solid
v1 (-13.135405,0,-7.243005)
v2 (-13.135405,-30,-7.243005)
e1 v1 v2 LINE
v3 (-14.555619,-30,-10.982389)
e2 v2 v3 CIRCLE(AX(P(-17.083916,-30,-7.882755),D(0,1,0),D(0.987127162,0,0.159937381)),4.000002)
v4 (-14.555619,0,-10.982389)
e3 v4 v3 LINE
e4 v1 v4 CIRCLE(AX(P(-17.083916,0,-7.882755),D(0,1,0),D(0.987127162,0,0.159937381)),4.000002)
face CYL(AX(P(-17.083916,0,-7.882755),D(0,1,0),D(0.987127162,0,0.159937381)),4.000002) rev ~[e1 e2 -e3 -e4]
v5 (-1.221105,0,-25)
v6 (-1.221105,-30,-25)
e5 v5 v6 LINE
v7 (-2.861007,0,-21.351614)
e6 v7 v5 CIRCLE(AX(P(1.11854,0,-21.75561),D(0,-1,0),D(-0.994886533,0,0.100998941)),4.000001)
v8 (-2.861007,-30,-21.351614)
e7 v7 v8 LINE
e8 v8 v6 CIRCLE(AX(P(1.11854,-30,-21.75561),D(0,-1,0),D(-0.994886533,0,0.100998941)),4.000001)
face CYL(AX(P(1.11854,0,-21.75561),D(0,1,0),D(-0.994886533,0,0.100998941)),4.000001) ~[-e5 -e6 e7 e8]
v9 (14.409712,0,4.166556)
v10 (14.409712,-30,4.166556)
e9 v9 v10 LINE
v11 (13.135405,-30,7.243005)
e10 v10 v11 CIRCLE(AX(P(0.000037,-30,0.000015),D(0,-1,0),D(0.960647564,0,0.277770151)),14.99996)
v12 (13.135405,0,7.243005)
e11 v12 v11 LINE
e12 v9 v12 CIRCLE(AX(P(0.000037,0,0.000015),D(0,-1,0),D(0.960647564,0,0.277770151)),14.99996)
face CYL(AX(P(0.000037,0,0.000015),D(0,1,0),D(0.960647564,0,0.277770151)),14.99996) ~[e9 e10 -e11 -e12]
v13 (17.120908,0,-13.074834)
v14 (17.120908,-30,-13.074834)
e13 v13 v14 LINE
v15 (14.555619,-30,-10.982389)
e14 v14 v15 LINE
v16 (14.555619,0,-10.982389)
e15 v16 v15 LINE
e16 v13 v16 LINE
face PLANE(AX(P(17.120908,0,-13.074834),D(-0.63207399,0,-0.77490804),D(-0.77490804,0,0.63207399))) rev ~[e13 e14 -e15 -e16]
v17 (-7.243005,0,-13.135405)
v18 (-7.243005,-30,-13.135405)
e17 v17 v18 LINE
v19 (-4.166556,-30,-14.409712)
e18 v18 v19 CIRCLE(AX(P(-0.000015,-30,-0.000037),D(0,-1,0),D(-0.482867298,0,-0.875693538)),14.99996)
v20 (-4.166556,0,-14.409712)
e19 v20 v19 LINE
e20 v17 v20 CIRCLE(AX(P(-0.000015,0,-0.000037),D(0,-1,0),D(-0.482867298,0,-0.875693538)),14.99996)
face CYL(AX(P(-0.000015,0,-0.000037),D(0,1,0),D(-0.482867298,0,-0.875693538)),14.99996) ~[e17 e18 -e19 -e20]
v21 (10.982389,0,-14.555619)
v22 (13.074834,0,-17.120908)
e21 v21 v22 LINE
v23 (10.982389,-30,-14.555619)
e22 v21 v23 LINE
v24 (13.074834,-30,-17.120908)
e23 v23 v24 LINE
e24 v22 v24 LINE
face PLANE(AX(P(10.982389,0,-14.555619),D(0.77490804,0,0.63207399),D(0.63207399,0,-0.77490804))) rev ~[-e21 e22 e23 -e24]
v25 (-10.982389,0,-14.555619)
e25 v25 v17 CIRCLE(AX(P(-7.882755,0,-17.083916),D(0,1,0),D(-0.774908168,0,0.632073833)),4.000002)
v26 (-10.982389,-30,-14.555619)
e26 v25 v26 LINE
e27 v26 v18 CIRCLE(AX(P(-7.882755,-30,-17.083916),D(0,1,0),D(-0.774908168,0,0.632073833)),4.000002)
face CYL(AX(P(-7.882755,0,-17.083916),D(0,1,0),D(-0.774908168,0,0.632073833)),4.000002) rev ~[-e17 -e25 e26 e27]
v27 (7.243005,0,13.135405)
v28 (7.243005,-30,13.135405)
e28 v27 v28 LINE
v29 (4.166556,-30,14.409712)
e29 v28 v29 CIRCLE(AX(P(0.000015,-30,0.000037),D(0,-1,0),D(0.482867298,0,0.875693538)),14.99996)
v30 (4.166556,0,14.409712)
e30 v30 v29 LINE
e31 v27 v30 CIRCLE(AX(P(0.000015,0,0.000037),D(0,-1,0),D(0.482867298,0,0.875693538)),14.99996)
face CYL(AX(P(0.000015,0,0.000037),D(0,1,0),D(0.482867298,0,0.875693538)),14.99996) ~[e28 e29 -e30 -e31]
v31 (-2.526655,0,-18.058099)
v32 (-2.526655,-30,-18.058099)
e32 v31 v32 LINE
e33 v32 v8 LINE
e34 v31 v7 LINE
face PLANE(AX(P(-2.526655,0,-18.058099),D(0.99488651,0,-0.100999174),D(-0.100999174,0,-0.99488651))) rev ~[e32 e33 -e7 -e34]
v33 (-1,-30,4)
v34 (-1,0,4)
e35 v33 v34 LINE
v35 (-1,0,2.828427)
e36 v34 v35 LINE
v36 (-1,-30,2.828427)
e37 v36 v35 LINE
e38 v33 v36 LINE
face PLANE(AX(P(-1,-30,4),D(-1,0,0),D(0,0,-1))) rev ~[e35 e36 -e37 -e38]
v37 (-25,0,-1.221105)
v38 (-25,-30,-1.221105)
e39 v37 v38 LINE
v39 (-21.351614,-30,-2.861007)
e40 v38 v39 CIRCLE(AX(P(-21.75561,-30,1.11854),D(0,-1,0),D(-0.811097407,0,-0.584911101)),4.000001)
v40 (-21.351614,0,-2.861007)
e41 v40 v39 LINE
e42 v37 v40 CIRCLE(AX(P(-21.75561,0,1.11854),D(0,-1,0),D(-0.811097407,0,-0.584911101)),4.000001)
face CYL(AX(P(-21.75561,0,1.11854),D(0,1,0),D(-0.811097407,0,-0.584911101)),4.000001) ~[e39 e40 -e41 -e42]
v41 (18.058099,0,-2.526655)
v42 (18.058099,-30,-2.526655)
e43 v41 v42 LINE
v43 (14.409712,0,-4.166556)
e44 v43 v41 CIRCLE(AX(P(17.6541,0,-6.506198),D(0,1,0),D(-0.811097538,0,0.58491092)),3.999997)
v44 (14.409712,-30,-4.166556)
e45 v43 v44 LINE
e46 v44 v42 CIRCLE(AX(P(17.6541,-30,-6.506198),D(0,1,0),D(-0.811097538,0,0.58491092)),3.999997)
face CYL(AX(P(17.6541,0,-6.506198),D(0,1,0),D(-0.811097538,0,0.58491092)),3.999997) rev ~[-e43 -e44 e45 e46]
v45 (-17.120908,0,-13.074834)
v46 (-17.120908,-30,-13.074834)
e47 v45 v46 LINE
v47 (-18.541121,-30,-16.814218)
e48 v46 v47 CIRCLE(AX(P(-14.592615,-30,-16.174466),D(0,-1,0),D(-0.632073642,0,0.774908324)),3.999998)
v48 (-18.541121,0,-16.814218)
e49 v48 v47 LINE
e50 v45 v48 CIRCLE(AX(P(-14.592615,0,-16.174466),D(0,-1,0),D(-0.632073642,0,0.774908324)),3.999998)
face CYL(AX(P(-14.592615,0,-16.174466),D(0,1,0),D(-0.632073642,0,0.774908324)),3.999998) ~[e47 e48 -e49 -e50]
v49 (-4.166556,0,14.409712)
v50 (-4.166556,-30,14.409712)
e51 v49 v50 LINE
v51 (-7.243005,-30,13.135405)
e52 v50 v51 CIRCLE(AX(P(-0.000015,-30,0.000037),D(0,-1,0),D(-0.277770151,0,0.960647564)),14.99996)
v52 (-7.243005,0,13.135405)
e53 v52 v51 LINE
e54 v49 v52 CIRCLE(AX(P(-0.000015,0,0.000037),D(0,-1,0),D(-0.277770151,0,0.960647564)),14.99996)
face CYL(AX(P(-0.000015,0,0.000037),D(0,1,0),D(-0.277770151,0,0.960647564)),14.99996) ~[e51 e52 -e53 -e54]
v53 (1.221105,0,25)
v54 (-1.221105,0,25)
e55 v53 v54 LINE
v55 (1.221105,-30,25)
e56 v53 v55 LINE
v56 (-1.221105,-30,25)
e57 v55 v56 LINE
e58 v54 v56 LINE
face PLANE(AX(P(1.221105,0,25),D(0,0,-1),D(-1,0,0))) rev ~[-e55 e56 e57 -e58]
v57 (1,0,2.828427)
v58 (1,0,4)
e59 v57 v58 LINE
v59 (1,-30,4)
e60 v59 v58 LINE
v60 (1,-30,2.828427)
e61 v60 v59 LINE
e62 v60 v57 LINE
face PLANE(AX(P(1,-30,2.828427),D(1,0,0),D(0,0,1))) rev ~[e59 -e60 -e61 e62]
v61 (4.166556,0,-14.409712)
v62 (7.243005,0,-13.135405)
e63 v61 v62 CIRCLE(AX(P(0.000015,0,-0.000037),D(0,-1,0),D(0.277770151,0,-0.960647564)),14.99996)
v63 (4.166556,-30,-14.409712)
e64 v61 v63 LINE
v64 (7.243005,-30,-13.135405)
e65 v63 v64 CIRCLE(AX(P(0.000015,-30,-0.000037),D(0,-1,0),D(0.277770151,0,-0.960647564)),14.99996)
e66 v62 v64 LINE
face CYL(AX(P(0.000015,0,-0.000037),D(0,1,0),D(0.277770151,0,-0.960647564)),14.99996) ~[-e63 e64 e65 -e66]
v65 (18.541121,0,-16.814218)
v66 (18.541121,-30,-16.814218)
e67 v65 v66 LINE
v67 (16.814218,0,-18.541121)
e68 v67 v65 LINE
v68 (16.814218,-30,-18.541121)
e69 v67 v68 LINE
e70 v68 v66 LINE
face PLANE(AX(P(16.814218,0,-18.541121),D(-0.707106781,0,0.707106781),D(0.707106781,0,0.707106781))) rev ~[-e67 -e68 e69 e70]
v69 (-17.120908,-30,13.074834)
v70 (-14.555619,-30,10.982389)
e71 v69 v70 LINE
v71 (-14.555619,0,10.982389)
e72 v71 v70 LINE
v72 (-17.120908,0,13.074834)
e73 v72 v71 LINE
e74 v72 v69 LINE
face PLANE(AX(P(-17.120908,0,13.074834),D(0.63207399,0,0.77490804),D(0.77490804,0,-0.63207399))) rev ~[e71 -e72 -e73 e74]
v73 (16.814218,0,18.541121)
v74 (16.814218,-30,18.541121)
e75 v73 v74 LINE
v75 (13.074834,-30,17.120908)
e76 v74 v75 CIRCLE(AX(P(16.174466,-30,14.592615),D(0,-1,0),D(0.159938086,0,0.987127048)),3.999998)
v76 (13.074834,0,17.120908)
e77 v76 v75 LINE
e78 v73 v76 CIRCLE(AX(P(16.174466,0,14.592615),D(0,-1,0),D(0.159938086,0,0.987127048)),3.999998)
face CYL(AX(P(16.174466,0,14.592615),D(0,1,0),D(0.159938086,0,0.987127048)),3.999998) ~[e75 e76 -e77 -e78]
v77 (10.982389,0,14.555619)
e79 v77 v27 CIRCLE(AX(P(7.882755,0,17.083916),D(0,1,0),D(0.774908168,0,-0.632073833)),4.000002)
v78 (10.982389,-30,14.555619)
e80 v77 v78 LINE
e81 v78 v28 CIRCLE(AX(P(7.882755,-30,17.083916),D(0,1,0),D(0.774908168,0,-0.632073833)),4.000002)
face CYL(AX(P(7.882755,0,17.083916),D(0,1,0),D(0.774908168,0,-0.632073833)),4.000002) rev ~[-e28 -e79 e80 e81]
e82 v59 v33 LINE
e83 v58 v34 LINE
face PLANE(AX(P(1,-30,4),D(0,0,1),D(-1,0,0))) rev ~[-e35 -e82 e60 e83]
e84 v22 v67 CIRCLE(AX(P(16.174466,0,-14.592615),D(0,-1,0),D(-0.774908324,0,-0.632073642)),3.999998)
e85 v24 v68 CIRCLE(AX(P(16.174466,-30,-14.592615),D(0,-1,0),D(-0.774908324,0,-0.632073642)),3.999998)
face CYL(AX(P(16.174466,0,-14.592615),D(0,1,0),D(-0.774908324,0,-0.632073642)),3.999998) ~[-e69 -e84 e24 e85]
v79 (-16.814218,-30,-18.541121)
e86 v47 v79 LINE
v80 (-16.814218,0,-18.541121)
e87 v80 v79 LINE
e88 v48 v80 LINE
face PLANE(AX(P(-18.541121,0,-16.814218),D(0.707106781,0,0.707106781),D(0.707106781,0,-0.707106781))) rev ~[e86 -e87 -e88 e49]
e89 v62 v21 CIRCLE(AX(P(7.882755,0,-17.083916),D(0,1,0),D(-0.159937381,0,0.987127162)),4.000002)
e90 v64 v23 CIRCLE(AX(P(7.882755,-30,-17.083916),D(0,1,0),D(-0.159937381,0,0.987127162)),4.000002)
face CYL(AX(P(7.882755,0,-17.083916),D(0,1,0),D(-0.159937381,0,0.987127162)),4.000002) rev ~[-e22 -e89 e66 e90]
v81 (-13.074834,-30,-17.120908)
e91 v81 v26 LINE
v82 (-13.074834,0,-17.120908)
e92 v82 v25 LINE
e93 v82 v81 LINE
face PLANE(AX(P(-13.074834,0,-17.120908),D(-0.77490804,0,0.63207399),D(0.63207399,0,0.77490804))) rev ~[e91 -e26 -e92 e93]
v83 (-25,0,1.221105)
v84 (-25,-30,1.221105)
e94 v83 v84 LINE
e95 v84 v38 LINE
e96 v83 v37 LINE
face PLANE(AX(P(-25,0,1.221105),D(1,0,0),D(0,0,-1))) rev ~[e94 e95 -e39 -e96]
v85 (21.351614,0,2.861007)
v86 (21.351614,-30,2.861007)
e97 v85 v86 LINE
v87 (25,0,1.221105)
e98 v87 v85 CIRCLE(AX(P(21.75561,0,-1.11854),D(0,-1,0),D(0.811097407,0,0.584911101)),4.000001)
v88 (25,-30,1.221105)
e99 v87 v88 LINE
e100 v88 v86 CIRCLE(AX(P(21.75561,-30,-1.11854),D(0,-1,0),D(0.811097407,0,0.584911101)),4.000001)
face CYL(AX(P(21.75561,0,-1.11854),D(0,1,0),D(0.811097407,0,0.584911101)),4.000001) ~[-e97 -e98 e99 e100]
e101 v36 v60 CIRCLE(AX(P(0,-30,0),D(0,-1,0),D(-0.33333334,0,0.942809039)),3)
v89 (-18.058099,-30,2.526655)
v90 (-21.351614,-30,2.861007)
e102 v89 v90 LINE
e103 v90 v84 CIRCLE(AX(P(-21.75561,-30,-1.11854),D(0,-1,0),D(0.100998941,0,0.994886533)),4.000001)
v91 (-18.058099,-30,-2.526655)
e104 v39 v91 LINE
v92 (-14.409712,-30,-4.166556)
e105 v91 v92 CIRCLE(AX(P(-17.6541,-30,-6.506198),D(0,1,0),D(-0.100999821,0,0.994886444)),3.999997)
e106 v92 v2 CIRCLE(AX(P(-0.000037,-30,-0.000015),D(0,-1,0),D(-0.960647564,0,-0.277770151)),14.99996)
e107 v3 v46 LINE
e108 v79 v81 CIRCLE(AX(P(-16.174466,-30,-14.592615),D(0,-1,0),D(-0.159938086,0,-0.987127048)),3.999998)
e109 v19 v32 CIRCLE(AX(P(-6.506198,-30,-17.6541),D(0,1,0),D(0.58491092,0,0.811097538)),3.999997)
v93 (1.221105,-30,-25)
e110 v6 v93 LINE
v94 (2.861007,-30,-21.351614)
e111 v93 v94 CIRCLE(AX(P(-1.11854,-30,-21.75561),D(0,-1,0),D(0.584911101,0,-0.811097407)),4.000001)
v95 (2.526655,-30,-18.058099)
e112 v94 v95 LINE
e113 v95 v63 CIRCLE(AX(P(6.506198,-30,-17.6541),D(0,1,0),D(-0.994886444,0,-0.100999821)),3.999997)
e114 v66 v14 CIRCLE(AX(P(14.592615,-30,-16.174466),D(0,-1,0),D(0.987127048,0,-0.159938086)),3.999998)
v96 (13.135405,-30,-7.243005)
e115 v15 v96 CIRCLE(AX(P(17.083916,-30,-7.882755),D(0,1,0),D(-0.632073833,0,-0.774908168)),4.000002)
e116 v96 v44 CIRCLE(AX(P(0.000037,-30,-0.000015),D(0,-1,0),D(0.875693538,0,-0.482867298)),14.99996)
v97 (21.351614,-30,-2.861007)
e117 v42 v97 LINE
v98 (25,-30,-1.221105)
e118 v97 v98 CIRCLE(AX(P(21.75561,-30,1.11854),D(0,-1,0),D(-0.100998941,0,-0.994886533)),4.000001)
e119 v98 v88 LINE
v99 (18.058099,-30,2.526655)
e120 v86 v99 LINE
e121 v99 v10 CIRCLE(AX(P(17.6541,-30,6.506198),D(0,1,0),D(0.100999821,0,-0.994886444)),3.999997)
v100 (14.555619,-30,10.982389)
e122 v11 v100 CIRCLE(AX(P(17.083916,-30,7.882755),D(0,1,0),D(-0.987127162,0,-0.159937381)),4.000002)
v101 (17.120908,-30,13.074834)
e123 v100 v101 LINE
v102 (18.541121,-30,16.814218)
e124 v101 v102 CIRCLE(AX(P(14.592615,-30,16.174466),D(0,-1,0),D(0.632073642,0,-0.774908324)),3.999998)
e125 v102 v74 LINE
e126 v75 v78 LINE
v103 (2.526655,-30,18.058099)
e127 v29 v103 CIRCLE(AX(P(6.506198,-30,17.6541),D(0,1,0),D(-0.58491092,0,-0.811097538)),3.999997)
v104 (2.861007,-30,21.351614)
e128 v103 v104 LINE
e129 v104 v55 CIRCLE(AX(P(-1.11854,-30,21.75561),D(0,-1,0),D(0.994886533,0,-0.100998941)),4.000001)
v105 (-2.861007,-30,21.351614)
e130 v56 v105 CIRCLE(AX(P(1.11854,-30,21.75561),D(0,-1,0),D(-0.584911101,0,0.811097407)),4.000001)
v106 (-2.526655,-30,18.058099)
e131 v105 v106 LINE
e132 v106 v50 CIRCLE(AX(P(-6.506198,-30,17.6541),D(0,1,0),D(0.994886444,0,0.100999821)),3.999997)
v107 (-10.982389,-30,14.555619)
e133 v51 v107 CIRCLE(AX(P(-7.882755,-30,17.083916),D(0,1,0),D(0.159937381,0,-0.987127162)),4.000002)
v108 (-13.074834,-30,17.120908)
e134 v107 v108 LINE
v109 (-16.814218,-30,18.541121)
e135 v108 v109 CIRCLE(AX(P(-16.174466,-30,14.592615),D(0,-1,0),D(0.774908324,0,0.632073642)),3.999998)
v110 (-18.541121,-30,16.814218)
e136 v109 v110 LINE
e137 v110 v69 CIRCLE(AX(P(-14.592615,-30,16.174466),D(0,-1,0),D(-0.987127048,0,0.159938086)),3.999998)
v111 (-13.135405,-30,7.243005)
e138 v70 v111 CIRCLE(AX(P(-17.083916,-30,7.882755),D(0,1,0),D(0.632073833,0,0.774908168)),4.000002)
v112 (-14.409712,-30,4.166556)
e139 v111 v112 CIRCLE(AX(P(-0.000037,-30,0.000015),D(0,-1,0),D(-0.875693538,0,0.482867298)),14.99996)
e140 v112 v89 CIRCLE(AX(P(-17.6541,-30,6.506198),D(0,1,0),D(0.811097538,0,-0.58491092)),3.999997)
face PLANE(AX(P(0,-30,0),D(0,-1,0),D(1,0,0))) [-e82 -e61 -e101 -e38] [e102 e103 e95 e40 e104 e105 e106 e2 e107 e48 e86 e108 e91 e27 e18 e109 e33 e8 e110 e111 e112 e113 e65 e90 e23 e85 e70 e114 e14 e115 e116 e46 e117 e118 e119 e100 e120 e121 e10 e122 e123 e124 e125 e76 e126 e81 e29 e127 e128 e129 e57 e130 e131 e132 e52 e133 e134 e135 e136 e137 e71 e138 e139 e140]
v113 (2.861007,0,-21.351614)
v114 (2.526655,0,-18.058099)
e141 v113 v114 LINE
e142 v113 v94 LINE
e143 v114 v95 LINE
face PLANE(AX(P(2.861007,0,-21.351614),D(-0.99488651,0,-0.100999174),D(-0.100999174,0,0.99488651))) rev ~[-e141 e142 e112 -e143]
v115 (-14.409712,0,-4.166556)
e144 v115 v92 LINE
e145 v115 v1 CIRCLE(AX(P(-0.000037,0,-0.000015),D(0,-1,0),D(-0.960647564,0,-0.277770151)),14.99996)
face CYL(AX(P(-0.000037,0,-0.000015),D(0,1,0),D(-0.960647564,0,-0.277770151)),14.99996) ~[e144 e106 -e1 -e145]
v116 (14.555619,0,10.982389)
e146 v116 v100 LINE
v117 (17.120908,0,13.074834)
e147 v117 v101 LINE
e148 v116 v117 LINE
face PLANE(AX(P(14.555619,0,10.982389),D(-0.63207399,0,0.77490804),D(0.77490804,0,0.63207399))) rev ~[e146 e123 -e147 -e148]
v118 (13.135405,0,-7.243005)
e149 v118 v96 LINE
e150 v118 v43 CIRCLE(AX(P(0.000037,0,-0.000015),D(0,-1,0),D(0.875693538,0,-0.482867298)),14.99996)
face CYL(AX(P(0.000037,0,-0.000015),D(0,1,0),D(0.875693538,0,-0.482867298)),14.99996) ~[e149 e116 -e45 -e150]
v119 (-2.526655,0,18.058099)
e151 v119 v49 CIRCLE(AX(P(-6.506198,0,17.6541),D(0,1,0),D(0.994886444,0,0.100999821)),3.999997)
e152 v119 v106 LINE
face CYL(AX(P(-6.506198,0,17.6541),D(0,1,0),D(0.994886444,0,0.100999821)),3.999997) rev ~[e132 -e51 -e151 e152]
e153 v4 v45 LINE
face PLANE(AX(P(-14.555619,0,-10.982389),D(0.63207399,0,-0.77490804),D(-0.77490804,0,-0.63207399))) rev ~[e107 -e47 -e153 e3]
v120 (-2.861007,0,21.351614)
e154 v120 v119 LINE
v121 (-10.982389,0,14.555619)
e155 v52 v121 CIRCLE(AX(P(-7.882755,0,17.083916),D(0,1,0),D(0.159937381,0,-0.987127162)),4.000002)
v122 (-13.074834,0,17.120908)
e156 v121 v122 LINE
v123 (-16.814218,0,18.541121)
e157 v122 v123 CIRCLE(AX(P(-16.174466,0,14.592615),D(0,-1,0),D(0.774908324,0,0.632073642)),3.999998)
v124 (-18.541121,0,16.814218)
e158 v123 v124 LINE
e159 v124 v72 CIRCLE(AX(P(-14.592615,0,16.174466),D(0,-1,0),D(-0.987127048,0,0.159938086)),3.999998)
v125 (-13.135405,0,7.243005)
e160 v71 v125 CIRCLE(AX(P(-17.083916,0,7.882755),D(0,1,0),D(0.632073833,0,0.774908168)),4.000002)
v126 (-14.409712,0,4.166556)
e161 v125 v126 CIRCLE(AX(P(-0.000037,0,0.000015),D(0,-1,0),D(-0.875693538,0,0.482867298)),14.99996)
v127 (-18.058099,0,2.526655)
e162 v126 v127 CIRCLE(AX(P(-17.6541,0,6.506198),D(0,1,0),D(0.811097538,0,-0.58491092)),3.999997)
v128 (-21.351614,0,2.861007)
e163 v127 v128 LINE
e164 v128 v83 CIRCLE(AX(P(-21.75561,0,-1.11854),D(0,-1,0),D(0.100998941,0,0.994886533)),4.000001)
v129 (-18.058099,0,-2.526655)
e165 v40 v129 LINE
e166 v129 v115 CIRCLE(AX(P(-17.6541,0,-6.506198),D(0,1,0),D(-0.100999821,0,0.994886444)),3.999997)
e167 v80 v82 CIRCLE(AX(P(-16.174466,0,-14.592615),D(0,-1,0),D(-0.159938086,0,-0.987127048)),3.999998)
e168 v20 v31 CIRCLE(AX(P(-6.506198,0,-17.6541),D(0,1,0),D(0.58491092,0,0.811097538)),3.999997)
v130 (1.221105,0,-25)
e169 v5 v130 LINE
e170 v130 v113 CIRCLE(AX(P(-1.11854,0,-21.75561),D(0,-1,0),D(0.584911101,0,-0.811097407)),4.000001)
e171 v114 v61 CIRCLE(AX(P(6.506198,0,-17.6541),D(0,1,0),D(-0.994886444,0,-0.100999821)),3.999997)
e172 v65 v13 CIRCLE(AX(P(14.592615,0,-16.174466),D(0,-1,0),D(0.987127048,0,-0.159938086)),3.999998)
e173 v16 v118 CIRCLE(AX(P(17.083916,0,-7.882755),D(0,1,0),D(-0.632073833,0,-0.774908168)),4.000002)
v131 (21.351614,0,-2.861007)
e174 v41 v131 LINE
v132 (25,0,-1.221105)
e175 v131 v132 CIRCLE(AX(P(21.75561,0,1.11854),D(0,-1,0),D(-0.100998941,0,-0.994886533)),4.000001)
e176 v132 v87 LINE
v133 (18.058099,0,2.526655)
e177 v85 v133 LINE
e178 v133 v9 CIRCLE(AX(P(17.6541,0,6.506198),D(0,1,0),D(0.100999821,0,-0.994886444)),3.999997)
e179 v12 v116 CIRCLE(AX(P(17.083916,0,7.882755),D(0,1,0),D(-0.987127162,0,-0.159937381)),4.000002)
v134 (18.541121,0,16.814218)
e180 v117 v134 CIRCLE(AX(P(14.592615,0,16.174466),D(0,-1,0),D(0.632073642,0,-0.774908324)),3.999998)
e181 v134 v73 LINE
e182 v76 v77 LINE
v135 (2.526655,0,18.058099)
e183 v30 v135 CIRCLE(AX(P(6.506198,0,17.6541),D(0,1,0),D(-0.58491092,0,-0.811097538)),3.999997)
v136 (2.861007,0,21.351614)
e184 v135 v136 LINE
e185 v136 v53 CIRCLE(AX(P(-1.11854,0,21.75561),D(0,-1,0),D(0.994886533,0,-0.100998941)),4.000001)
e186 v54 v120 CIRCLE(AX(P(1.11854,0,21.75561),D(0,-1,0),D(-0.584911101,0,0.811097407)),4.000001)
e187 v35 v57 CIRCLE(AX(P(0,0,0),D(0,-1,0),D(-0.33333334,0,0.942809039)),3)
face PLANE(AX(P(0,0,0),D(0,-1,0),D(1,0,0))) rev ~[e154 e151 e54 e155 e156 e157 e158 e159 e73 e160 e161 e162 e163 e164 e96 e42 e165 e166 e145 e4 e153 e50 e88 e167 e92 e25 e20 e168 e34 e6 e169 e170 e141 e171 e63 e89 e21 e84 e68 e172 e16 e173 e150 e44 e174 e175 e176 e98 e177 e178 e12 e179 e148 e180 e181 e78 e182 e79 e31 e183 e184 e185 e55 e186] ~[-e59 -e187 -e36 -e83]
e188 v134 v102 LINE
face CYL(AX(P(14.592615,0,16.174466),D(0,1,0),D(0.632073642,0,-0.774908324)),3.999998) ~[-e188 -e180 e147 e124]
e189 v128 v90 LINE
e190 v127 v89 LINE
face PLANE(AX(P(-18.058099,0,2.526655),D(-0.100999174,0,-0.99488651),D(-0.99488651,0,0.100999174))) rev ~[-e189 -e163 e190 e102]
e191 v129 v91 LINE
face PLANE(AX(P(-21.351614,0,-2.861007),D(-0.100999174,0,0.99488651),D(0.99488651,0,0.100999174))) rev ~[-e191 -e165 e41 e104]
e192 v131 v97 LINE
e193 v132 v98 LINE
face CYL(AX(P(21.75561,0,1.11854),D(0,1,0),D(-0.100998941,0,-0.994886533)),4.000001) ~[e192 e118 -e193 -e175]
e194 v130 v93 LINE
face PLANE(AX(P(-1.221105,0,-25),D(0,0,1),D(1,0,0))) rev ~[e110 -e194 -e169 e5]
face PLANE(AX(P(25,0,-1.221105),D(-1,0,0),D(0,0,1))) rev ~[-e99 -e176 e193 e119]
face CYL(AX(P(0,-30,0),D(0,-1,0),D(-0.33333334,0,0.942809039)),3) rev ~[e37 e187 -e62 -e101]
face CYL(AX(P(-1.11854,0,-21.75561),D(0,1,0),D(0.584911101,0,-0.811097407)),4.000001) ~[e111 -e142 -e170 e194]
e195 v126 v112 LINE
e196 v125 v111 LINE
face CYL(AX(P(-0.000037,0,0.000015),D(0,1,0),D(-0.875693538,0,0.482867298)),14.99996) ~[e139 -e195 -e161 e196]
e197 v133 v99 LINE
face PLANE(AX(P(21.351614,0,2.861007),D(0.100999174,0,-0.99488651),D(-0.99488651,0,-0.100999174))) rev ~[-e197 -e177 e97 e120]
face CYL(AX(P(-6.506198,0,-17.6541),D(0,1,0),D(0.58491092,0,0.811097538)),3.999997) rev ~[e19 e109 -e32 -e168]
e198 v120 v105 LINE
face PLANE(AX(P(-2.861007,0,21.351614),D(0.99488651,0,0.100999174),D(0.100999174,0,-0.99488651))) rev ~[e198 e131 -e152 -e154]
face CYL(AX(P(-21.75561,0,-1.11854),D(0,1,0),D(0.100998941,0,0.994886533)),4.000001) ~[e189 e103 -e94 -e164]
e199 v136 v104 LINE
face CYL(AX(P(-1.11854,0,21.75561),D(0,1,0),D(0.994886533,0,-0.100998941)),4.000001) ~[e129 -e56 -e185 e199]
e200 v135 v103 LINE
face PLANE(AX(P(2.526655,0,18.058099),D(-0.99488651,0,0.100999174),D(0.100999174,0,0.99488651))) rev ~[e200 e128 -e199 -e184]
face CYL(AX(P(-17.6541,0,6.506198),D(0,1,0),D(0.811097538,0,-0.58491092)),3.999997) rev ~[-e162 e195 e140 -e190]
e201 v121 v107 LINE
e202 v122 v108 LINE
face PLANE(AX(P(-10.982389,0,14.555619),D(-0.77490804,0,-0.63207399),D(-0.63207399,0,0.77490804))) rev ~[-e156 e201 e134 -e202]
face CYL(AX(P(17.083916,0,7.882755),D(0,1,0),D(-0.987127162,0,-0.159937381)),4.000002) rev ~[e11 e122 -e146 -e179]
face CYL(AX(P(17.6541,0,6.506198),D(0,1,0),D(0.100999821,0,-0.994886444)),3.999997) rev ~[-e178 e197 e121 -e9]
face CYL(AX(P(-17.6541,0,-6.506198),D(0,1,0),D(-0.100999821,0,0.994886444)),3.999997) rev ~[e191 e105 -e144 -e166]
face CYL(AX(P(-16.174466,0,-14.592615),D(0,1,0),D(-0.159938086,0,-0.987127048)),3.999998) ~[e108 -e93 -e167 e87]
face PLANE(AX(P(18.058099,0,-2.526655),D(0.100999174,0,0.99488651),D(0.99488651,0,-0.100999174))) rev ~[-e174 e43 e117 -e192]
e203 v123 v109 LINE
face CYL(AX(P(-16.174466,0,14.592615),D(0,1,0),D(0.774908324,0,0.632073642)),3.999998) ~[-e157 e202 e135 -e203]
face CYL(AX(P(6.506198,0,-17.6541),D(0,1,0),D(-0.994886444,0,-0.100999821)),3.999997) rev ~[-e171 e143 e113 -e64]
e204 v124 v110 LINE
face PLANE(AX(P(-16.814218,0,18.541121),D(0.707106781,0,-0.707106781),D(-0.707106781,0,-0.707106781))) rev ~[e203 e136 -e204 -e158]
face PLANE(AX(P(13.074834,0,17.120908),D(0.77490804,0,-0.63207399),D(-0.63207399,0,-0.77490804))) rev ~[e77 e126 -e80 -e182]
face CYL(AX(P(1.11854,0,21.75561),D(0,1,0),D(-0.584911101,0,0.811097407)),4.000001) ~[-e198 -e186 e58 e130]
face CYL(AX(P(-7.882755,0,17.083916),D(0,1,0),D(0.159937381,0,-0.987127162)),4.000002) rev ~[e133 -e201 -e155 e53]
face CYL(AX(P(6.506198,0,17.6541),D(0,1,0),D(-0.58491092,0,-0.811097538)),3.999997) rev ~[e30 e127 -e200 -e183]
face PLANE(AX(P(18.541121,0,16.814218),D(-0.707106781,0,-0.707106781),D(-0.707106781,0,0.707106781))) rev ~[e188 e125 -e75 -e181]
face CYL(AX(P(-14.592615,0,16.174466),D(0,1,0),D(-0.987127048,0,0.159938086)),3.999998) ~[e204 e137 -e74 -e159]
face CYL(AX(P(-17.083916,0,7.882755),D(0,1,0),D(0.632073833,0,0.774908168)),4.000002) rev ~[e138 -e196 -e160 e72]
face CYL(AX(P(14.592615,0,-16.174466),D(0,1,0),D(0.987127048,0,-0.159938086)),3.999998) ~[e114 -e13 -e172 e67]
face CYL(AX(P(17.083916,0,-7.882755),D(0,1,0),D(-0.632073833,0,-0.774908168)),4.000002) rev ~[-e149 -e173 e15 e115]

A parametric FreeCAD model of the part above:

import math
import FreeCAD as App
import Part
import Sketcher
from FreeCAD import Vector
Q = App.Units.Quantity

doc = App.newDocument("Part")
body = doc.addObject("PartDesign::Body", "Body")

# Sketch on XZ plane
sketch1 = body.newObject("Sketcher::SketchObject", "Sketch")
sketch1.AttachmentSupport = (doc.getObject("XZ_Plane"), [""])
sketch1.MapMode = "FlatFace"
sketch1.addGeometry(Part.ArcOfCircle(Part.Circle(Vector(-17.083916, 7.882755, 0), Vector(0, 0, 1), 4.000002), math.radians(-9.203262), math.radians(50.796708)), False)
sketch1.addGeometry(Part.ArcOfCircle(Part.Circle(Vector(-0.000037, 0.000015, 0), Vector(0, 0, 1), 14.99996), math.radians(151.127162), math.radians(163.872835)), False)
sketch1.addGeometry(Part.ArcOfCircle(Part.Circle(Vector(-17.6541, 6.506198, 0), Vector(0, 0, 1), 3.999997), math.radians(-95.796748), math.radians(-35.796697)), False)
sketch1.addGeometry(Part.LineSegment(Vector(-18.058099, 2.526655, 0), Vector(-21.351614, 2.861007, 0)), False)
sketch1.addGeometry(Part.ArcOfCircle(Part.Circle(Vector(-21.75561, -1.11854, 0), Vector(0, 0, 1), 4.000001), math.radians(84.203303), math.radians(144.20329)), False)
sketch1.addGeometry(Part.LineSegment(Vector(-25, 1.221105, 0), Vector(-25, -1.221105, 0)), False)
sketch1.addGeometry(Part.ArcOfCircle(Part.Circle(Vector(-21.75561, 1.11854, 0), Vector(0, 0, 1), 4.000001), math.radians(-144.20329), math.radians(-84.203303)), False)
sketch1.addGeometry(Part.LineSegment(Vector(-21.351614, -2.861007, 0), Vector(-18.058099, -2.526655, 0)), False)
sketch1.addGeometry(Part.ArcOfCircle(Part.Circle(Vector(-17.6541, -6.506198, 0), Vector(0, 0, 1), 3.999997), math.radians(35.796697), math.radians(95.796748)), False)
sketch1.addGeometry(Part.ArcOfCircle(Part.Circle(Vector(-0.000037, -0.000015, 0), Vector(0, 0, 1), 14.99996), math.radians(-163.872835), math.radians(-151.127162)), False)
sketch1.addGeometry(Part.ArcOfCircle(Part.Circle(Vector(-17.083916, -7.882755, 0), Vector(0, 0, 1), 4.000002), math.radians(-50.796708), math.radians(9.203262)), False)
sketch1.addGeometry(Part.LineSegment(Vector(-14.555619, -10.982389, 0), Vector(-17.120908, -13.074834, 0)), False)
sketch1.addGeometry(Part.ArcOfCircle(Part.Circle(Vector(-14.592615, -16.174466, 0), Vector(0, 0, 1), 3.999998), math.radians(129.203278), math.radians(189.203303)), False)
sketch1.addGeometry(Part.LineSegment(Vector(-18.541121, -16.814218, 0), Vector(-16.814218, -18.541121, 0)), False)
sketch1.addGeometry(Part.ArcOfCircle(Part.Circle(Vector(-16.174466, -14.592615, 0), Vector(0, 0, 1), 3.999998), math.radians(-99.203303), math.radians(-39.203278)), False)
sketch1.addGeometry(Part.LineSegment(Vector(-13.074834, -17.120908, 0), Vector(-10.982389, -14.555619, 0)), False)
sketch1.addGeometry(Part.ArcOfCircle(Part.Circle(Vector(-7.882755, -17.083916, 0), Vector(0, 0, 1), 4.000002), math.radians(80.796738), math.radians(140.796708)), False)
sketch1.addGeometry(Part.ArcOfCircle(Part.Circle(Vector(-0.000015, -0.000037, 0), Vector(0, 0, 1), 14.99996), math.radians(-118.872838), math.radians(-106.127165)), False)
sketch1.addGeometry(Part.ArcOfCircle(Part.Circle(Vector(-6.506198, -17.6541, 0), Vector(0, 0, 1), 3.999997), math.radians(-5.796748), math.radians(54.203303)), False)
sketch1.addGeometry(Part.LineSegment(Vector(-2.526655, -18.058099, 0), Vector(-2.861007, -21.351614, 0)), False)
sketch1.addGeometry(Part.ArcOfCircle(Part.Circle(Vector(1.11854, -21.75561, 0), Vector(0, 0, 1), 4.000001), math.radians(174.203303), math.radians(234.20329)), False)
sketch1.addGeometry(Part.LineSegment(Vector(-1.221105, -25, 0), Vector(1.221105, -25, 0)), False)
sketch1.addGeometry(Part.ArcOfCircle(Part.Circle(Vector(-1.11854, -21.75561, 0), Vector(0, 0, 1), 4.000001), math.radians(-54.20329), math.radians(5.796697)), False)
sketch1.addGeometry(Part.LineSegment(Vector(2.861007, -21.351614, 0), Vector(2.526655, -18.058099, 0)), False)
sketch1.addGeometry(Part.ArcOfCircle(Part.Circle(Vector(6.506198, -17.6541, 0), Vector(0, 0, 1), 3.999997), math.radians(125.796697), math.radians(185.796748)), False)
sketch1.addGeometry(Part.ArcOfCircle(Part.Circle(Vector(0.000015, -0.000037, 0), Vector(0, 0, 1), 14.99996), math.radians(-73.872835), math.radians(-61.127162)), False)
sketch1.addGeometry(Part.ArcOfCircle(Part.Circle(Vector(7.882755, -17.083916, 0), Vector(0, 0, 1), 4.000002), math.radians(39.203292), math.radians(99.203262)), False)
sketch1.addGeometry(Part.LineSegment(Vector(10.982389, -14.555619, 0), Vector(13.074834, -17.120908, 0)), False)
sketch1.addGeometry(Part.ArcOfCircle(Part.Circle(Vector(16.174466, -14.592615, 0), Vector(0, 0, 1), 3.999998), math.radians(-140.796722), math.radians(-80.796697)), False)
sketch1.addGeometry(Part.LineSegment(Vector(16.814218, -18.541121, 0), Vector(18.541121, -16.814218, 0)), False)
sketch1.addGeometry(Part.ArcOfCircle(Part.Circle(Vector(14.592615, -16.174466, 0), Vector(0, 0, 1), 3.999998), math.radians(-9.203303), math.radians(50.796722)), False)
sketch1.addGeometry(Part.LineSegment(Vector(17.120908, -13.074834, 0), Vector(14.555619, -10.982389, 0)), False)
sketch1.addGeometry(Part.ArcOfCircle(Part.Circle(Vector(17.083916, -7.882755, 0), Vector(0, 0, 1), 4.000002), math.radians(170.796738), math.radians(230.796708)), False)
sketch1.addGeometry(Part.ArcOfCircle(Part.Circle(Vector(0.000037, -0.000015, 0), Vector(0, 0, 1), 14.99996), math.radians(-28.872838), math.radians(-16.127165)), False)
sketch1.addGeometry(Part.ArcOfCircle(Part.Circle(Vector(17.6541, -6.506198, 0), Vector(0, 0, 1), 3.999997), math.radians(84.203252), math.radians(144.203303)), False)
sketch1.addGeometry(Part.LineSegment(Vector(18.058099, -2.526655, 0), Vector(21.351614, -2.861007, 0)), False)
sketch1.addGeometry(Part.ArcOfCircle(Part.Circle(Vector(21.75561, 1.11854, 0), Vector(0, 0, 1), 4.000001), math.radians(-95.796697), math.radians(-35.79671)), False)
sketch1.addGeometry(Part.LineSegment(Vector(25, -1.221105, 0), Vector(25, 1.221105, 0)), False)
sketch1.addGeometry(Part.ArcOfCircle(Part.Circle(Vector(21.75561, -1.11854, 0), Vector(0, 0, 1), 4.000001), math.radians(35.79671), math.radians(95.796697)), False)
sketch1.addGeometry(Part.LineSegment(Vector(21.351614, 2.861007, 0), Vector(18.058099, 2.526655, 0)), False)
sketch1.addGeometry(Part.ArcOfCircle(Part.Circle(Vector(17.6541, 6.506198, 0), Vector(0, 0, 1), 3.999997), math.radians(-144.203303), math.radians(-84.203252)), False)
sketch1.addGeometry(Part.ArcOfCircle(Part.Circle(Vector(0.000037, 0.000015, 0), Vector(0, 0, 1), 14.99996), math.radians(16.127165), math.radians(28.872838)), False)
sketch1.addGeometry(Part.ArcOfCircle(Part.Circle(Vector(17.083916, 7.882755, 0), Vector(0, 0, 1), 4.000002), math.radians(129.203292), math.radians(189.203262)), False)
sketch1.addGeometry(Part.LineSegment(Vector(14.555619, 10.982389, 0), Vector(17.120908, 13.074834, 0)), False)
sketch1.addGeometry(Part.ArcOfCircle(Part.Circle(Vector(14.592615, 16.174466, 0), Vector(0, 0, 1), 3.999998), math.radians(-50.796722), math.radians(9.203303)), False)
sketch1.addGeometry(Part.LineSegment(Vector(18.541121, 16.814218, 0), Vector(16.814218, 18.541121, 0)), False)
sketch1.addGeometry(Part.ArcOfCircle(Part.Circle(Vector(16.174466, 14.592615, 0), Vector(0, 0, 1), 3.999998), math.radians(80.796697), math.radians(140.796722)), False)
sketch1.addGeometry(Part.LineSegment(Vector(13.074834, 17.120908, 0), Vector(10.982389, 14.555619, 0)), False)
sketch1.addGeometry(Part.ArcOfCircle(Part.Circle(Vector(7.882755, 17.083916, 0), Vector(0, 0, 1), 4.000002), math.radians(-99.203262), math.radians(-39.203292)), False)
sketch1.addGeometry(Part.ArcOfCircle(Part.Circle(Vector(0.000015, 0.000037, 0), Vector(0, 0, 1), 14.99996), math.radians(61.127162), math.radians(73.872835)), False)
sketch1.addGeometry(Part.ArcOfCircle(Part.Circle(Vector(6.506198, 17.6541, 0), Vector(0, 0, 1), 3.999997), math.radians(174.203252), math.radians(234.203303)), False)
sketch1.addGeometry(Part.LineSegment(Vector(2.526655, 18.058099, 0), Vector(2.861007, 21.351614, 0)), False)
sketch1.addGeometry(Part.ArcOfCircle(Part.Circle(Vector(-1.11854, 21.75561, 0), Vector(0, 0, 1), 4.000001), math.radians(-5.796697), math.radians(54.20329)), False)
sketch1.addGeometry(Part.LineSegment(Vector(1.221105, 25, 0), Vector(-1.221105, 25, 0)), False)
sketch1.addGeometry(Part.ArcOfCircle(Part.Circle(Vector(1.11854, 21.75561, 0), Vector(0, 0, 1), 4.000001), math.radians(125.79671), math.radians(185.796697)), False)
sketch1.addGeometry(Part.LineSegment(Vector(-2.861007, 21.351614, 0), Vector(-2.526655, 18.058099, 0)), False)
sketch1.addGeometry(Part.ArcOfCircle(Part.Circle(Vector(-6.506198, 17.6541, 0), Vector(0, 0, 1), 3.999997), math.radians(-54.203303), math.radians(5.796748)), False)
sketch1.addGeometry(Part.ArcOfCircle(Part.Circle(Vector(-0.000015, 0.000037, 0), Vector(0, 0, 1), 14.99996), math.radians(106.127165), math.radians(118.872838)), False)
sketch1.addGeometry(Part.ArcOfCircle(Part.Circle(Vector(-7.882755, 17.083916, 0), Vector(0, 0, 1), 4.000002), math.radians(-140.796708), math.radians(-80.796738)), False)
sketch1.addGeometry(Part.LineSegment(Vector(-10.982389, 14.555619, 0), Vector(-13.074834, 17.120908, 0)), False)
sketch1.addGeometry(Part.ArcOfCircle(Part.Circle(Vector(-16.174466, 14.592615, 0), Vector(0, 0, 1), 3.999998), math.radians(39.203278), math.radians(99.203303)), False)
sketch1.addGeometry(Part.LineSegment(Vector(-16.814218, 18.541121, 0), Vector(-18.541121, 16.814218, 0)), False)
sketch1.addGeometry(Part.ArcOfCircle(Part.Circle(Vector(-14.592615, 16.174466, 0), Vector(0, 0, 1), 3.999998), math.radians(170.796697), math.radians(230.796722)), False)
sketch1.addGeometry(Part.LineSegment(Vector(-17.120908, 13.074834, 0), Vector(-14.555619, 10.982389, 0)), False)
sketch1.addConstraint(Sketcher.Constraint("Coincident", 0, 1, 1, 1))
sketch1.addConstraint(Sketcher.Constraint("Coincident", 1, 2, 2, 2))
sketch1.addConstraint(Sketcher.Constraint("Coincident", 2, 1, 3, 1))
sketch1.addConstraint(Sketcher.Constraint("Coincident", 3, 2, 4, 1))
sketch1.addConstraint(Sketcher.Constraint("Coincident", 4, 2, 5, 1))
sketch1.addConstraint(Sketcher.Constraint("Coincident", 5, 2, 6, 1))
sketch1.addConstraint(Sketcher.Constraint("Coincident", 6, 2, 7, 1))
sketch1.addConstraint(Sketcher.Constraint("Coincident", 7, 2, 8, 2))
sketch1.addConstraint(Sketcher.Constraint("Coincident", 8, 1, 9, 1))
sketch1.addConstraint(Sketcher.Constraint("Coincident", 9, 2, 10, 2))
sketch1.addConstraint(Sketcher.Constraint("Coincident", 10, 1, 11, 1))
sketch1.addConstraint(Sketcher.Constraint("Coincident", 11, 2, 12, 1))
sketch1.addConstraint(Sketcher.Constraint("Coincident", 12, 2, 13, 1))
sketch1.addConstraint(Sketcher.Constraint("Coincident", 13, 2, 14, 1))
sketch1.addConstraint(Sketcher.Constraint("Coincident", 14, 2, 15, 1))
sketch1.addConstraint(Sketcher.Constraint("Coincident", 15, 2, 16, 2))
sketch1.addConstraint(Sketcher.Constraint("Coincident", 16, 1, 17, 1))
sketch1.addConstraint(Sketcher.Constraint("Coincident", 17, 2, 18, 2))
sketch1.addConstraint(Sketcher.Constraint("Coincident", 18, 1, 19, 1))
sketch1.addConstraint(Sketcher.Constraint("Coincident", 19, 2, 20, 1))
sketch1.addConstraint(Sketcher.Constraint("Coincident", 20, 2, 21, 1))
sketch1.addConstraint(Sketcher.Constraint("Coincident", 21, 2, 22, 1))
sketch1.addConstraint(Sketcher.Constraint("Coincident", 22, 2, 23, 1))
sketch1.addConstraint(Sketcher.Constraint("Coincident", 23, 2, 24, 2))
sketch1.addConstraint(Sketcher.Constraint("Coincident", 24, 1, 25, 1))
sketch1.addConstraint(Sketcher.Constraint("Coincident", 25, 2, 26, 2))
sketch1.addConstraint(Sketcher.Constraint("Coincident", 26, 1, 27, 1))
sketch1.addConstraint(Sketcher.Constraint("Coincident", 27, 2, 28, 1))
sketch1.addConstraint(Sketcher.Constraint("Coincident", 28, 2, 29, 1))
sketch1.addConstraint(Sketcher.Constraint("Coincident", 29, 2, 30, 1))
sketch1.addConstraint(Sketcher.Constraint("Coincident", 30, 2, 31, 1))
sketch1.addConstraint(Sketcher.Constraint("Coincident", 31, 2, 32, 2))
sketch1.addConstraint(Sketcher.Constraint("Coincident", 32, 1, 33, 1))
sketch1.addConstraint(Sketcher.Constraint("Coincident", 33, 2, 34, 2))
sketch1.addConstraint(Sketcher.Constraint("Coincident", 34, 1, 35, 1))
sketch1.addConstraint(Sketcher.Constraint("Coincident", 35, 2, 36, 1))
sketch1.addConstraint(Sketcher.Constraint("Coincident", 36, 2, 37, 1))
sketch1.addConstraint(Sketcher.Constraint("Coincident", 37, 2, 38, 1))
sketch1.addConstraint(Sketcher.Constraint("Coincident", 38, 2, 39, 1))
sketch1.addConstraint(Sketcher.Constraint("Coincident", 39, 2, 40, 2))
sketch1.addConstraint(Sketcher.Constraint("Coincident", 40, 1, 41, 1))
sketch1.addConstraint(Sketcher.Constraint("Coincident", 41, 2, 42, 2))
sketch1.addConstraint(Sketcher.Constraint("Coincident", 42, 1, 43, 1))
sketch1.addConstraint(Sketcher.Constraint("Coincident", 43, 2, 44, 1))
sketch1.addConstraint(Sketcher.Constraint("Coincident", 44, 2, 45, 1))
sketch1.addConstraint(Sketcher.Constraint("Coincident", 45, 2, 46, 1))
sketch1.addConstraint(Sketcher.Constraint("Coincident", 46, 2, 47, 1))
sketch1.addConstraint(Sketcher.Constraint("Coincident", 47, 2, 48, 2))
sketch1.addConstraint(Sketcher.Constraint("Coincident", 48, 1, 49, 1))
sketch1.addConstraint(Sketcher.Constraint("Coincident", 49, 2, 50, 2))
sketch1.addConstraint(Sketcher.Constraint("Coincident", 50, 1, 51, 1))
sketch1.addConstraint(Sketcher.Constraint("Coincident", 51, 2, 52, 1))
sketch1.addConstraint(Sketcher.Constraint("Coincident", 52, 2, 53, 1))
sketch1.addConstraint(Sketcher.Constraint("Coincident", 53, 2, 54, 1))
sketch1.addConstraint(Sketcher.Constraint("Coincident", 54, 2, 55, 1))
sketch1.addConstraint(Sketcher.Constraint("Coincident", 55, 2, 56, 2))
sketch1.addConstraint(Sketcher.Constraint("Coincident", 56, 1, 57, 1))
sketch1.addConstraint(Sketcher.Constraint("Coincident", 57, 2, 58, 2))
sketch1.addConstraint(Sketcher.Constraint("Coincident", 58, 1, 59, 1))
sketch1.addConstraint(Sketcher.Constraint("Coincident", 59, 2, 60, 1))
sketch1.addConstraint(Sketcher.Constraint("Coincident", 60, 2, 61, 1))
sketch1.addConstraint(Sketcher.Constraint("Coincident", 61, 2, 62, 1))
sketch1.addConstraint(Sketcher.Constraint("Coincident", 62, 2, 63, 1))
sketch1.addConstraint(Sketcher.Constraint("Coincident", 63, 2, 0, 2))
sketch1.addConstraint(Sketcher.Constraint("Vertical", 5))
sketch1.addConstraint(Sketcher.Constraint("Horizontal", 21))
sketch1.addConstraint(Sketcher.Constraint("Vertical", 37))
sketch1.addConstraint(Sketcher.Constraint("Horizontal", 53))
sketch1.addConstraint(Sketcher.Constraint("Radius", 0, Q("4.000002 mm")))
sketch1.addConstraint(Sketcher.Constraint("Radius", 4, Q("4.000001 mm")))
sketch1.addConstraint(Sketcher.Constraint("Radius", 6, Q("4.000001 mm")))
sketch1.addConstraint(Sketcher.Constraint("Radius", 10, Q("4.000002 mm")))
sketch1.addConstraint(Sketcher.Constraint("Radius", 12, Q("3.999998 mm")))
sketch1.addConstraint(Sketcher.Constraint("Radius", 14, Q("3.999998 mm")))
sketch1.addConstraint(Sketcher.Constraint("Radius", 16, Q("4.000002 mm")))
sketch1.addConstraint(Sketcher.Constraint("Radius", 20, Q("4.000001 mm")))
sketch1.addConstraint(Sketcher.Constraint("Radius", 22, Q("4.000001 mm")))
sketch1.addConstraint(Sketcher.Constraint("Radius", 26, Q("4.000002 mm")))
sketch1.addConstraint(Sketcher.Constraint("Radius", 28, Q("3.999998 mm")))
sketch1.addConstraint(Sketcher.Constraint("Radius", 30, Q("3.999998 mm")))
sketch1.addConstraint(Sketcher.Constraint("Radius", 32, Q("4.000002 mm")))
sketch1.addConstraint(Sketcher.Constraint("Radius", 36, Q("4.000001 mm")))
sketch1.addConstraint(Sketcher.Constraint("Radius", 38, Q("4.000001 mm")))
sketch1.addConstraint(Sketcher.Constraint("Radius", 42, Q("4.000002 mm")))
sketch1.addConstraint(Sketcher.Constraint("Radius", 44, Q("3.999998 mm")))
sketch1.addConstraint(Sketcher.Constraint("Radius", 46, Q("3.999998 mm")))
sketch1.addConstraint(Sketcher.Constraint("Radius", 48, Q("4.000002 mm")))
sketch1.addConstraint(Sketcher.Constraint("Radius", 52, Q("4.000001 mm")))
sketch1.addConstraint(Sketcher.Constraint("Radius", 54, Q("4.000001 mm")))
sketch1.addConstraint(Sketcher.Constraint("Radius", 58, Q("4.000002 mm")))
sketch1.addConstraint(Sketcher.Constraint("Radius", 60, Q("3.999998 mm")))
sketch1.addConstraint(Sketcher.Constraint("Radius", 62, Q("3.999998 mm")))
sketch1.addConstraint(Sketcher.Constraint("DistanceX", 4, 2, -1, 1, Q("25 mm")))
sketch1.addConstraint(Sketcher.Constraint("DistanceY", 20, 2, -1, 1, Q("25 mm")))
sketch1.addConstraint(Sketcher.Constraint("DistanceX", -1, 1, 36, 2, Q("25 mm")))
sketch1.addConstraint(Sketcher.Constraint("DistanceY", -1, 1, 52, 2, Q("25 mm")))
sketch1.addConstraint(Sketcher.Constraint("Radius", 1, Q("14.99996 mm")))
sketch1.addConstraint(Sketcher.Constraint("Radius", 9, Q("14.99996 mm")))
sketch1.addConstraint(Sketcher.Constraint("Radius", 17, Q("14.99996 mm")))
sketch1.addConstraint(Sketcher.Constraint("Radius", 25, Q("14.99996 mm")))
sketch1.addConstraint(Sketcher.Constraint("Radius", 33, Q("14.99996 mm")))
sketch1.addConstraint(Sketcher.Constraint("Radius", 41, Q("14.99996 mm")))
sketch1.addConstraint(Sketcher.Constraint("Radius", 49, Q("14.99996 mm")))
sketch1.addConstraint(Sketcher.Constraint("Radius", 57, Q("14.99996 mm")))
sketch1.addConstraint(Sketcher.Constraint("Radius", 2, Q("3.999997 mm")))
sketch1.addConstraint(Sketcher.Constraint("Radius", 8, Q("3.999997 mm")))
sketch1.addConstraint(Sketcher.Constraint("Radius", 18, Q("3.999997 mm")))
sketch1.addConstraint(Sketcher.Constraint("Radius", 24, Q("3.999997 mm")))
sketch1.addConstraint(Sketcher.Constraint("Radius", 34, Q("3.999997 mm")))
sketch1.addConstraint(Sketcher.Constraint("Radius", 40, Q("3.999997 mm")))
sketch1.addConstraint(Sketcher.Constraint("Radius", 50, Q("3.999997 mm")))
sketch1.addConstraint(Sketcher.Constraint("Radius", 56, Q("3.999997 mm")))
sketch1.addConstraint(Sketcher.Constraint("DistanceX", 21, 1, 21, 2, Q("2.44221 mm")))
sketch1.addConstraint(Sketcher.Constraint("DistanceX", 53, 2, 53, 1, Q("2.44221 mm")))
sketch1.addConstraint(Sketcher.Constraint("DistanceY", 5, 2, 5, 1, Q("2.44221 mm")))
sketch1.addConstraint(Sketcher.Constraint("DistanceY", 37, 1, 37, 2, Q("2.44221 mm")))
sketch1.addConstraint(Sketcher.Constraint("DistanceX", 2, 3, -1, 1, Q("17.6541 mm")))
sketch1.addConstraint(Sketcher.Constraint("DistanceY", -1, 1, 2, 3, Q("6.506198 mm")))
sketch1.addConstraint(Sketcher.Constraint("DistanceX", 8, 3, -1, 1, Q("17.6541 mm")))
sketch1.addConstraint(Sketcher.Constraint("DistanceY", 8, 3, -1, 1, Q("6.506198 mm")))
sketch1.addConstraint(Sketcher.Constraint("DistanceX", 18, 3, -1, 1, Q("6.506198 mm")))
sketch1.addConstraint(Sketcher.Constraint("DistanceY", 18, 3, -1, 1, Q("17.6541 mm")))
sketch1.addConstraint(Sketcher.Constraint("DistanceX", -1, 1, 24, 3, Q("6.506198 mm")))
sketch1.addConstraint(Sketcher.Constraint("DistanceY", 24, 3, -1, 1, Q("17.6541 mm")))
sketch1.addConstraint(Sketcher.Constraint("DistanceX", -1, 1, 34, 3, Q("17.6541 mm")))
sketch1.addConstraint(Sketcher.Constraint("DistanceY", 34, 3, -1, 1, Q("6.506198 mm")))
sketch1.addConstraint(Sketcher.Constraint("DistanceX", -1, 1, 40, 3, Q("17.6541 mm")))
sketch1.addConstraint(Sketcher.Constraint("DistanceY", -1, 1, 40, 3, Q("6.506198 mm")))
sketch1.addConstraint(Sketcher.Constraint("DistanceX", -1, 1, 50, 3, Q("6.506198 mm")))
sketch1.addConstraint(Sketcher.Constraint("DistanceY", -1, 1, 50, 3, Q("17.6541 mm")))
sketch1.addConstraint(Sketcher.Constraint("DistanceX", 56, 3, -1, 1, Q("6.506198 mm")))
sketch1.addConstraint(Sketcher.Constraint("DistanceY", -1, 1, 56, 3, Q("17.6541 mm")))
sketch1.addConstraint(Sketcher.Constraint("DistanceX", 2, 1, -1, 1, Q("18.058099 mm")))
sketch1.addConstraint(Sketcher.Constraint("DistanceX", 7, 2, -1, 1, Q("18.058099 mm")))
sketch1.addConstraint(Sketcher.Constraint("DistanceY", 18, 1, -1, 1, Q("18.058099 mm")))
sketch1.addConstraint(Sketcher.Constraint("DistanceY", 23, 2, -1, 1, Q("18.058099 mm")))
sketch1.addConstraint(Sketcher.Constraint("DistanceX", -1, 1, 34, 1, Q("18.058099 mm")))
sketch1.addConstraint(Sketcher.Constraint("DistanceX", -1, 1, 39, 2, Q("18.058099 mm")))
sketch1.addConstraint(Sketcher.Constraint("DistanceY", -1, 1, 50, 1, Q("18.058099 mm")))
sketch1.addConstraint(Sketcher.Constraint("DistanceY", -1, 1, 55, 2, Q("18.058099 mm")))
sketch1.addConstraint(Sketcher.Constraint("Distance", 13, Q("2.44221 mm")))
sketch1.addConstraint(Sketcher.Constraint("Distance", 29, Q("2.44221 mm")))
sketch1.addConstraint(Sketcher.Constraint("Distance", 45, Q("2.44221 mm")))
sketch1.addConstraint(Sketcher.Constraint("Distance", 61, Q("2.44221 mm")))
sketch1.addConstraint(Sketcher.Constraint("DistanceX", 4, 3, -1, 1, Q("21.75561 mm")))
sketch1.addConstraint(Sketcher.Constraint("DistanceY", 4, 3, -1, 1, Q("1.11854 mm")))
sketch1.addConstraint(Sketcher.Constraint("DistanceX", 6, 3, -1, 1, Q("21.75561 mm")))
sketch1.addConstraint(Sketcher.Constraint("DistanceX", -1, 1, 20, 3, Q("1.11854 mm")))
sketch1.addConstraint(Sketcher.Constraint("DistanceY", 20, 3, -1, 1, Q("21.75561 mm")))
sketch1.addConstraint(Sketcher.Constraint("DistanceX", 22, 3, -1, 1, Q("1.11854 mm")))
sketch1.addConstraint(Sketcher.Constraint("DistanceX", -1, 1, 36, 3, Q("21.75561 mm")))
sketch1.addConstraint(Sketcher.Constraint("DistanceY", -1, 1, 36, 3, Q("1.11854 mm")))
sketch1.addConstraint(Sketcher.Constraint("DistanceX", -1, 1, 38, 3, Q("21.75561 mm")))
sketch1.addConstraint(Sketcher.Constraint("DistanceX", 52, 3, -1, 1, Q("1.11854 mm")))
sketch1.addConstraint(Sketcher.Constraint("DistanceY", -1, 1, 52, 3, Q("21.75561 mm")))
sketch1.addConstraint(Sketcher.Constraint("DistanceX", -1, 1, 54, 3, Q("1.11854 mm")))
sketch1.addConstraint(Sketcher.Constraint("DistanceX", 8, 1, -1, 1, Q("14.409712 mm")))
sketch1.addConstraint(Sketcher.Constraint("DistanceX", 10, 1, -1, 1, Q("14.555619 mm")))
sketch1.addConstraint(Sketcher.Constraint("DistanceY", 10, 1, -1, 1, Q("10.982389 mm")))
sketch1.addConstraint(Sketcher.Constraint("DistanceX", 11, 2, -1, 1, Q("17.120908 mm")))
sketch1.addConstraint(Sketcher.Constraint("DistanceX", 12, 2, -1, 1, Q("18.541121 mm")))
sketch1.addConstraint(Sketcher.Constraint("DistanceX", 13, 2, -1, 1, Q("16.814218 mm")))
sketch1.addConstraint(Sketcher.Constraint("DistanceY", 13, 2, -1, 1, Q("18.541121 mm")))
sketch1.addConstraint(Sketcher.Constraint("DistanceY", 14, 2, -1, 1, Q("17.120908 mm")))
sketch1.addConstraint(Sketcher.Constraint("DistanceX", 15, 2, -1, 1, Q("10.982389 mm")))
sketch1.addConstraint(Sketcher.Constraint("DistanceY", 15, 2, -1, 1, Q("14.555619 mm")))
sketch1.addConstraint(Sketcher.Constraint("DistanceY", 24, 1, -1, 1, Q("14.409712 mm")))
sketch1.addConstraint(Sketcher.Constraint("DistanceX", -1, 1, 26, 1, Q("10.982389 mm")))
sketch1.addConstraint(Sketcher.Constraint("DistanceY", 26, 1, -1, 1, Q("14.555619 mm")))
sketch1.addConstraint(Sketcher.Constraint("DistanceY", 27, 2, -1, 1, Q("17.120908 mm")))
sketch1.addConstraint(Sketcher.Constraint("DistanceY", 28, 2, -1, 1, Q("18.541121 mm")))
sketch1.addConstraint(Sketcher.Constraint("DistanceX", -1, 1, 29, 2, Q("18.541121 mm")))
sketch1.addConstraint(Sketcher.Constraint("DistanceY", 29, 2, -1, 1, Q("16.814218 mm")))
sketch1.addConstraint(Sketcher.Constraint("DistanceX", -1, 1, 30, 2, Q("17.120908 mm")))
sketch1.addConstraint(Sketcher.Constraint("DistanceX", -1, 1, 31, 2, Q("14.555619 mm")))
sketch1.addConstraint(Sketcher.Constraint("DistanceY", 31, 2, -1, 1, Q("10.982389 mm")))
sketch1.addConstraint(Sketcher.Constraint("DistanceX", -1, 1, 40, 1, Q("14.409712 mm")))
sketch1.addConstraint(Sketcher.Constraint("DistanceX", -1, 1, 42, 1, Q("14.555619 mm")))
sketch1.addConstraint(Sketcher.Constraint("DistanceY", -1, 1, 42, 1, Q("10.982389 mm")))
sketch1.addConstraint(Sketcher.Constraint("DistanceX", -1, 1, 43, 2, Q("17.120908 mm")))
sketch1.addConstraint(Sketcher.Constraint("DistanceX", -1, 1, 44, 2, Q("18.541121 mm")))
sketch1.addConstraint(Sketcher.Constraint("DistanceX", -1, 1, 45, 2, Q("16.814218 mm")))
sketch1.addConstraint(Sketcher.Constraint("DistanceY", -1, 1, 45, 2, Q("18.541121 mm")))
sketch1.addConstraint(Sketcher.Constraint("DistanceY", -1, 1, 46, 2, Q("17.120908 mm")))
sketch1.addConstraint(Sketcher.Constraint("DistanceX", -1, 1, 47, 2, Q("10.982389 mm")))
sketch1.addConstraint(Sketcher.Constraint("DistanceY", -1, 1, 47, 2, Q("14.555619 mm")))
sketch1.addConstraint(Sketcher.Constraint("DistanceY", -1, 1, 56, 1, Q("14.409712 mm")))
sketch1.addConstraint(Sketcher.Constraint("DistanceX", 58, 1, -1, 1, Q("10.982389 mm")))
sketch1.addConstraint(Sketcher.Constraint("DistanceY", -1, 1, 58, 1, Q("14.555619 mm")))
sketch1.addConstraint(Sketcher.Constraint("DistanceY", -1, 1, 59, 2, Q("17.120908 mm")))
sketch1.addConstraint(Sketcher.Constraint("DistanceY", -1, 1, 60, 2, Q("18.541121 mm")))
sketch1.addConstraint(Sketcher.Constraint("DistanceX", 61, 2, -1, 1, Q("18.541121 mm")))
sketch1.addConstraint(Sketcher.Constraint("DistanceY", -1, 1, 61, 2, Q("16.814218 mm")))
sketch1.addConstraint(Sketcher.Constraint("DistanceX", 62, 2, -1, 1, Q("17.120908 mm")))
sketch1.addConstraint(Sketcher.Constraint("DistanceX", 63, 2, -1, 1, Q("14.555619 mm")))
sketch1.addConstraint(Sketcher.Constraint("DistanceY", -1, 1, 63, 2, Q("10.982389 mm")))
sketch1.addConstraint(Sketcher.Constraint("Distance", 3, Q("3.310443 mm")))
sketch1.addConstraint(Sketcher.Constraint("Distance", 7, Q("3.310443 mm")))
sketch1.addConstraint(Sketcher.Constraint("Distance", 11, Q("3.310443 mm")))
sketch1.addConstraint(Sketcher.Constraint("Distance", 15, Q("3.310443 mm")))
sketch1.addConstraint(Sketcher.Constraint("Distance", 19, Q("3.310443 mm")))
sketch1.addConstraint(Sketcher.Constraint("Distance", 23, Q("3.310443 mm")))
sketch1.addConstraint(Sketcher.Constraint("Distance", 27, Q("3.310443 mm")))
sketch1.addConstraint(Sketcher.Constraint("Distance", 31, Q("3.310443 mm")))
sketch1.addConstraint(Sketcher.Constraint("Distance", 35, Q("3.310443 mm")))
sketch1.addConstraint(Sketcher.Constraint("Distance", 39, Q("3.310443 mm")))
sketch1.addConstraint(Sketcher.Constraint("Distance", 43, Q("3.310443 mm")))
sketch1.addConstraint(Sketcher.Constraint("Distance", 47, Q("3.310443 mm")))
sketch1.addConstraint(Sketcher.Constraint("Distance", 51, Q("3.310443 mm")))
sketch1.addConstraint(Sketcher.Constraint("Distance", 55, Q("3.310443 mm")))
sketch1.addConstraint(Sketcher.Constraint("Distance", 59, Q("3.310443 mm")))
sketch1.addConstraint(Sketcher.Constraint("Distance", 63, Q("3.310443 mm")))
sketch1.addConstraint(Sketcher.Constraint("DistanceX", 0, 3, -1, 1, Q("17.083916 mm")))
sketch1.addConstraint(Sketcher.Constraint("DistanceX", 10, 3, -1, 1, Q("17.083916 mm")))
sketch1.addConstraint(Sketcher.Constraint("DistanceX", 16, 3, -1, 1, Q("7.882755 mm")))
sketch1.addConstraint(Sketcher.Constraint("DistanceX", -1, 1, 26, 3, Q("7.882755 mm")))
sketch1.addConstraint(Sketcher.Constraint("DistanceX", -1, 1, 32, 3, Q("17.083916 mm")))
sketch1.addConstraint(Sketcher.Constraint("DistanceX", -1, 1, 42, 3, Q("17.083916 mm")))
sketch1.addConstraint(Sketcher.Constraint("DistanceX", -1, 1, 48, 3, Q("7.882755 mm")))
sketch1.addConstraint(Sketcher.Constraint("DistanceX", 58, 3, -1, 1, Q("7.882755 mm")))
sketch1.addConstraint(Sketcher.Constraint("DistanceX", 0, 1, -1, 1, Q("13.135405 mm")))
sketch1.addConstraint(Sketcher.Constraint("DistanceX", 1, 2, -1, 1, Q("14.409712 mm")))
sketch1.addConstraint(Sketcher.Constraint("DistanceX", 9, 2, -1, 1, Q("13.135405 mm")))
sketch1.addConstraint(Sketcher.Constraint("DistanceX", 16, 1, -1, 1, Q("7.243005 mm")))
sketch1.addConstraint(Sketcher.Constraint("DistanceX", 17, 2, -1, 1, Q("4.166556 mm")))
sketch1.addConstraint(Sketcher.Constraint("DistanceX", -1, 1, 25, 2, Q("7.243005 mm")))
sketch1.addConstraint(Sketcher.Constraint("DistanceX", -1, 1, 32, 1, Q("13.135405 mm")))
sketch1.addConstraint(Sketcher.Constraint("DistanceX", -1, 1, 33, 2, Q("14.409712 mm")))
sketch1.addConstraint(Sketcher.Constraint("DistanceX", -1, 1, 41, 2, Q("13.135405 mm")))
sketch1.addConstraint(Sketcher.Constraint("DistanceX", -1, 1, 48, 1, Q("7.243005 mm")))
sketch1.addConstraint(Sketcher.Constraint("DistanceX", -1, 1, 49, 2, Q("4.166556 mm")))
sketch1.addConstraint(Sketcher.Constraint("DistanceX", 57, 2, -1, 1, Q("7.243005 mm")))
pad1 = body.newObject("PartDesign::Pad", "Pad")
pad1.Profile = sketch1
pad1.Length = 30

# Sketch on XZ plane
sketch2 = body.newObject("Sketcher::SketchObject", "Sketch001")
sketch2.AttachmentSupport = (doc.getObject("XZ_Plane"), [""])
sketch2.MapMode = "FlatFace"
sketch2.AttachmentOffset = App.Placement(Vector(0, 0, 30), App.Rotation())
sketch2.addGeometry(Part.LineSegment(Vector(-1, 4, 0), Vector(-1, 2.828427, 0)), False)
sketch2.addGeometry(Part.ArcOfCircle(Part.Circle(Vector(0, 0, 0), Vector(0, 0, 1), 3), math.radians(109.471221), math.radians(430.528779)), False)
sketch2.addGeometry(Part.LineSegment(Vector(1, 2.828427, 0), Vector(1, 4, 0)), False)
sketch2.addGeometry(Part.LineSegment(Vector(1, 4, 0), Vector(-1, 4, 0)), False)
sketch2.addConstraint(Sketcher.Constraint("Coincident", 0, 2, 1, 1))
sketch2.addConstraint(Sketcher.Constraint("Coincident", 1, 2, 2, 1))
sketch2.addConstraint(Sketcher.Constraint("Coincident", 2, 2, 3, 1))
sketch2.addConstraint(Sketcher.Constraint("Coincident", 3, 2, 0, 1))
sketch2.addConstraint(Sketcher.Constraint("Vertical", 0))
sketch2.addConstraint(Sketcher.Constraint("Vertical", 2))
sketch2.addConstraint(Sketcher.Constraint("Horizontal", 3))
sketch2.addConstraint(Sketcher.Constraint("Coincident", 1, 3, -1, 1))
sketch2.addConstraint(Sketcher.Constraint("Horizontal", 0, 2, 1, 2))
sketch2.addConstraint(Sketcher.Constraint("Radius", 1, Q("3 mm")))
sketch2.addConstraint(Sketcher.Constraint("DistanceX", 3, 2, 3, 1, Q("2 mm")))
sketch2.addConstraint(Sketcher.Constraint("DistanceY", -1, 1, 2, 2, Q("4 mm")))
pocket1 = body.newObject("PartDesign::Pocket", "Pocket")
pocket1.Profile = sketch2
pocket1.Type = "ThroughAll"

doc.recompute()
